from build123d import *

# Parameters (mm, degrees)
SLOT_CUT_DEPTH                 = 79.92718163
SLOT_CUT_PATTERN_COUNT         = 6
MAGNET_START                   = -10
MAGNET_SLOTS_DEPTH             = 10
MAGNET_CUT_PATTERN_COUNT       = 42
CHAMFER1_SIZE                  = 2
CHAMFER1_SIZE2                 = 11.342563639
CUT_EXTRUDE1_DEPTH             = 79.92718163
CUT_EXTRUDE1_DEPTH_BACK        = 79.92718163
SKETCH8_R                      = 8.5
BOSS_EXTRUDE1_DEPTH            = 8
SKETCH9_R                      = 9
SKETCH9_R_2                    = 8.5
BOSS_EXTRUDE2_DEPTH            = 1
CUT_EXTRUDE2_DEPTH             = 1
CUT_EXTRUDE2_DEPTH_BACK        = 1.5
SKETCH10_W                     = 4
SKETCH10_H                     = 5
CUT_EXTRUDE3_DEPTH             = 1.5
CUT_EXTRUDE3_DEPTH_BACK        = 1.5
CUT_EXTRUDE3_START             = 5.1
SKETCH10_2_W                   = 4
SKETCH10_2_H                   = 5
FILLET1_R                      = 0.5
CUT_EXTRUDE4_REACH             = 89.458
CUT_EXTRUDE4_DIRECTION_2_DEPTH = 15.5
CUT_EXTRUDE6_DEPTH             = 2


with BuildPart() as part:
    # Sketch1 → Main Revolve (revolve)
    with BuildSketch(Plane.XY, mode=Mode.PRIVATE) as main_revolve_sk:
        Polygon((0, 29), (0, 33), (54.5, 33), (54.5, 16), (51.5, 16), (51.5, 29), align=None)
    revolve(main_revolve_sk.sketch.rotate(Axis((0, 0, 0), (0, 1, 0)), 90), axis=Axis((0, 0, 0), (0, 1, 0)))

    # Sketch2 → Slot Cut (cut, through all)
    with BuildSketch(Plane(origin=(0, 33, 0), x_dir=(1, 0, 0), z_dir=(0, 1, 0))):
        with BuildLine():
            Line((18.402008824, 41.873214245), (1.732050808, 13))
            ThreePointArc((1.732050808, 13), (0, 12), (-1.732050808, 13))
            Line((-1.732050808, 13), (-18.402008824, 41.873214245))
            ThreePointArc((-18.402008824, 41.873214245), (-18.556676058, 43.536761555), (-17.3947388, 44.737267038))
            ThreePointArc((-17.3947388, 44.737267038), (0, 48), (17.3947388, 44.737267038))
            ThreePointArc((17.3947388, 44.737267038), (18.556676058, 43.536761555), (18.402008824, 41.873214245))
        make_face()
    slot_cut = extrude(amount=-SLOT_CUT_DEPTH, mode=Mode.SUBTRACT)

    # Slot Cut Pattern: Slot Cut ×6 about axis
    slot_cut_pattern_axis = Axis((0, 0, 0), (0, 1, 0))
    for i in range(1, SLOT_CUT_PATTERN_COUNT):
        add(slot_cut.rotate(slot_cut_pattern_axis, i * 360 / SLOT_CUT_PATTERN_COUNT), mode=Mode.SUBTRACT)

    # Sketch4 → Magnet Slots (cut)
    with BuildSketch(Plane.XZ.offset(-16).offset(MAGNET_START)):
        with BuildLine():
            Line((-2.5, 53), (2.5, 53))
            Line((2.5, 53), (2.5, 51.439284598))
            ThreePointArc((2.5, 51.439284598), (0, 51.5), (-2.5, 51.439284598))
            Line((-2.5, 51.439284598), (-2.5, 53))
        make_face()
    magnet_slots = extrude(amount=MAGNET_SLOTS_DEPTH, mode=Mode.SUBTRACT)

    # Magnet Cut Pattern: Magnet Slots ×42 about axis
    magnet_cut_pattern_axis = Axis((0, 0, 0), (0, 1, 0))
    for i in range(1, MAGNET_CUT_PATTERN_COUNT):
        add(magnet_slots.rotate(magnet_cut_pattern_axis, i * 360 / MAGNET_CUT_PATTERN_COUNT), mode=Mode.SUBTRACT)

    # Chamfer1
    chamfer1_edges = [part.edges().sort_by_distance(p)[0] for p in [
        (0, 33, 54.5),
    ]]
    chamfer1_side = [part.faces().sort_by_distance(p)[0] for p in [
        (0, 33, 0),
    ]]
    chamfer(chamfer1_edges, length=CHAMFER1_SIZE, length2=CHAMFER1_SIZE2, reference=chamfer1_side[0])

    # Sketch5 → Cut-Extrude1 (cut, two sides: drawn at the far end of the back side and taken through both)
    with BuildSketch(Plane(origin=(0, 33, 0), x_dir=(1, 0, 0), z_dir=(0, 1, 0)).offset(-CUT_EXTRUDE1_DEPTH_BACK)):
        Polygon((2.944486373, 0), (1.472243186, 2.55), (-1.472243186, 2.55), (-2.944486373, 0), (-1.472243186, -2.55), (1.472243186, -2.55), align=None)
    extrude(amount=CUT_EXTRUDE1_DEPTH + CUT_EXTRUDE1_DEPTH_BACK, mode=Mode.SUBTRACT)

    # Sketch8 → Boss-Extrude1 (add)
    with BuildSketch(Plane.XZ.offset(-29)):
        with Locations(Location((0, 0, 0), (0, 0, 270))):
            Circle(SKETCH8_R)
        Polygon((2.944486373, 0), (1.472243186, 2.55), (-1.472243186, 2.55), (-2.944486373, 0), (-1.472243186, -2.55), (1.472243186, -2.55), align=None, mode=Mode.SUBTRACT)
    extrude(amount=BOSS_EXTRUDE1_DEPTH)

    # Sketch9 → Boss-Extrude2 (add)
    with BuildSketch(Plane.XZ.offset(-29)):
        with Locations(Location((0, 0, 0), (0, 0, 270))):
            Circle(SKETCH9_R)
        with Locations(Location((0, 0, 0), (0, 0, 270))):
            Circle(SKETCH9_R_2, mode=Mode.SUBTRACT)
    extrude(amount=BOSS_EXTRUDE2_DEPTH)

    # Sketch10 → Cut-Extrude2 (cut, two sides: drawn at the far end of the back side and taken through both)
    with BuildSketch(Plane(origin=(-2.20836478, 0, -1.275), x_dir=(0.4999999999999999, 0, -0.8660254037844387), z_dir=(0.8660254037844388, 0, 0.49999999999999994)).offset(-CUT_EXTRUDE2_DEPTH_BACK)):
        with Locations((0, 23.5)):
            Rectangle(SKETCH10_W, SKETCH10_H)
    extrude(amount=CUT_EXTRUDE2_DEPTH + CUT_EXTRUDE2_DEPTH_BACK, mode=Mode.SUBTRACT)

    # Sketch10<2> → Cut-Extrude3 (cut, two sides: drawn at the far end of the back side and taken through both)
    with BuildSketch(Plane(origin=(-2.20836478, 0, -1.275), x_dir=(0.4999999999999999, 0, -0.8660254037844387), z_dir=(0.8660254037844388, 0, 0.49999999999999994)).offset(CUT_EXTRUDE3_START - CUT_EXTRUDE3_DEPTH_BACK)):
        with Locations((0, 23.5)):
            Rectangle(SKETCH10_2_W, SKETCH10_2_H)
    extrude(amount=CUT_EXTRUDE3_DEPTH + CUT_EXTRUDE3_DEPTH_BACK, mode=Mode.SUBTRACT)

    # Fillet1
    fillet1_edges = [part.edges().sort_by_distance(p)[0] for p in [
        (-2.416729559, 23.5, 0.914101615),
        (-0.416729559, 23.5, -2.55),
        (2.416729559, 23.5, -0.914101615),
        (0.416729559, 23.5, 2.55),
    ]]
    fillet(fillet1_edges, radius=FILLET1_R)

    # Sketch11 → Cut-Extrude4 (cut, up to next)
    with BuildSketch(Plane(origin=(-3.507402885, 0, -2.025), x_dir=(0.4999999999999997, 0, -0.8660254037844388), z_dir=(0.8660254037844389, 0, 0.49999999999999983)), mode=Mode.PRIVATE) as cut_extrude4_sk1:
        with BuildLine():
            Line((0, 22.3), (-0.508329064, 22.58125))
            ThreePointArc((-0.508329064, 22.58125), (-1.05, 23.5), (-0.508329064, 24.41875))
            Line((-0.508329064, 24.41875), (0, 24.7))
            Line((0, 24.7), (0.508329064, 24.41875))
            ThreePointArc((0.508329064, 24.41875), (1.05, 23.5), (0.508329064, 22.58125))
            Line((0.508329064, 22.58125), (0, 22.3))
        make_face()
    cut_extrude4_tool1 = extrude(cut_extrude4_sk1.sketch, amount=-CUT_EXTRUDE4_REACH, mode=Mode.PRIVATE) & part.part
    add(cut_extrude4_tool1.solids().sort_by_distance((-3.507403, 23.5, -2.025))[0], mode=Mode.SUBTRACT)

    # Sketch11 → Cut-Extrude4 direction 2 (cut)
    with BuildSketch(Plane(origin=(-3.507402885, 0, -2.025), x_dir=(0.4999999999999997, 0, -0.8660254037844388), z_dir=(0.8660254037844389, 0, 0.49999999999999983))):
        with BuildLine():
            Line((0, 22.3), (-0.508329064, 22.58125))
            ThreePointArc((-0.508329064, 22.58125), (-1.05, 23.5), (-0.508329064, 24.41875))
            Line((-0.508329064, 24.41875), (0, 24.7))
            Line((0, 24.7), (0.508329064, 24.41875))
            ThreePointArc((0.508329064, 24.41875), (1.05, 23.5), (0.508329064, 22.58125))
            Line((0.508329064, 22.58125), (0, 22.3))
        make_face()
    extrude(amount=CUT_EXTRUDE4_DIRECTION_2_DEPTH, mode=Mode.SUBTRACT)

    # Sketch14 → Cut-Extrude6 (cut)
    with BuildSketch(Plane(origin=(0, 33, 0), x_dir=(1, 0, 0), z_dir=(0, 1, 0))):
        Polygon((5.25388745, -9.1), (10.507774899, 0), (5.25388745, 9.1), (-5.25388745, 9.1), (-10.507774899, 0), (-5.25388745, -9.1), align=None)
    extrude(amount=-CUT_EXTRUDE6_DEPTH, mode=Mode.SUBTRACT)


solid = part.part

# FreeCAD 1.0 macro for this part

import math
import FreeCAD as App
import Part
import Sketcher
Q = App.Units.Quantity


def edges_at(feature, points):
    """Names of the edges that pass closest to the given points."""
    edges = feature.Shape.Edges
    near = lambda p: min(range(len(edges)), key=lambda i: edges[i].distToShape(Part.Vertex(*p))[0])
    return sorted({f"Edge{near(p) + 1}" for p in points})


def add_polygon(sketch, points):
    """Adds a closed chain of lines whose ends are joined by coincident constraints."""
    first, n = sketch.GeometryCount, len(points)
    for a, b in zip(points, points[1:] + points[:1]):
        sketch.addGeometry(Part.LineSegment(App.Vector(*a, 0), App.Vector(*b, 0)), False)
    for i in range(n):
        sketch.addConstraint(Sketcher.Constraint("Coincident", first + i, 2, first + (i + 1) % n, 1))

doc = App.newDocument("Part")
body = doc.addObject("PartDesign::Body", "Body")

# Sketch on XY plane
sketch1 = body.newObject("Sketcher::SketchObject", "Sketch")
sketch1.AttachmentSupport = (doc.getObject("XY_Plane"), [""])
sketch1.MapMode = "FlatFace"
add_polygon(sketch1, [(0, 33), (0, 29), (51.5, 29), (51.5, 16), (54.5, 16), (54.5, 33)])  # lines 0-5
sketch1.addConstraint([
    Sketcher.Constraint("Vertical", 0),
    Sketcher.Constraint("Horizontal", 1),
    Sketcher.Constraint("Vertical", 2),
    Sketcher.Constraint("Horizontal", 3),
    Sketcher.Constraint("Vertical", 4),
    Sketcher.Constraint("Horizontal", 5),
    Sketcher.Constraint("PointOnObject", 0, 2, -2),
    Sketcher.Constraint("DistanceX", 3, 1, 3, 2, Q("3 mm")),
    Sketcher.Constraint("DistanceY", 0, 2, 0, 1, Q("4 mm")),
    Sketcher.Constraint("DistanceY", 2, 2, 2, 1, Q("13 mm")),
    Sketcher.Constraint("DistanceX", 1, 1, 1, 2, Q("51.5 mm")),
    Sketcher.Constraint("DistanceY", -1, 1, 0, 2, Q("29 mm")),
])
revolution = body.newObject("PartDesign::Revolution", "Revolution")
revolution.Profile = sketch1
revolution.ReferenceAxis = (sketch1, ["V_Axis"])
revolution.Angle = 360

# Sketch on XZ plane
sketch2 = body.newObject("Sketcher::SketchObject", "Sketch001")
sketch2.AttachmentSupport = (doc.getObject("XZ_Plane"), [""])
sketch2.MapMode = "FlatFace"
sketch2.AttachmentOffset = App.Placement(App.Vector(0, 0, -33), App.Rotation())
sketch2.addGeometry([
    Part.LineSegment(App.Vector(1.732051, -13, 0), App.Vector(18.402009, -41.873214, 0)),  # 0
    Part.ArcOfCircle(Part.Circle(App.Vector(16.669958, -42.873214, 0), App.Vector(0, 0, 1), 2), math.radians(-68.752929), math.radians(30)),  # 1
    Part.ArcOfCircle(Part.Circle(App.Vector(0, 0, 0), App.Vector(0, 0, 1), 48), math.radians(-111.247071), math.radians(-68.752929)),  # 2
    Part.ArcOfCircle(Part.Circle(App.Vector(-16.669958, -42.873214, 0), App.Vector(0, 0, 1), 2), math.radians(150), math.radians(248.752929)),  # 3
    Part.LineSegment(App.Vector(-18.402009, -41.873214, 0), App.Vector(-1.732051, -13, 0)),  # 4
    Part.ArcOfCircle(Part.Circle(App.Vector(0, -14, 0), App.Vector(0, 0, 1), 2), math.radians(30), math.radians(150)),  # 5
], False)
sketch2.addConstraint([
    Sketcher.Constraint("Tangent", 0, 2, 1, 2),
    Sketcher.Constraint("Tangent", 1, 1, 2, 2),
    Sketcher.Constraint("Tangent", 2, 1, 3, 2),
    Sketcher.Constraint("Tangent", 3, 1, 4, 1),
    Sketcher.Constraint("Tangent", 4, 2, 5, 2),
    Sketcher.Constraint("Tangent", 5, 1, 0, 1),
    Sketcher.Constraint("Coincident", 2, 3, -1, 1),
    Sketcher.Constraint("Equal", 1, 3),
    Sketcher.Constraint("Equal", 3, 5),
    Sketcher.Constraint("Symmetric", 0, 2, 3, 1, -2),
    Sketcher.Constraint("Radius", 1, Q("2 mm")),
    Sketcher.Constraint("Radius", 2, Q("48 mm")),
    Sketcher.Constraint("Angle", 0, Q("-60 deg")),
    Sketcher.Constraint("DistanceY", 5, 3, -1, 1, Q("14 mm")),
])
pocket1 = body.newObject("PartDesign::Pocket", "Pocket")
pocket1.Profile = sketch2
pocket1.Type = "ThroughAll"
pocket1.Reversed = True
doc.recompute()

polarpattern = body.newObject("PartDesign::PolarPattern", "PolarPattern")
polarpattern.Originals = [pocket1]
polarpattern.Axis = (doc.getObject("Y_Axis"), [""])
polarpattern.Angle = 360
polarpattern.Occurrences = 6
body.Tip = polarpattern

# Sketch on XZ plane
sketch3 = body.newObject("Sketcher::SketchObject", "Sketch002")
sketch3.AttachmentSupport = (doc.getObject("XZ_Plane"), [""])
sketch3.MapMode = "FlatFace"
sketch3.AttachmentOffset = App.Placement(App.Vector(0, 0, -26), App.Rotation())
sketch3.addGeometry([
    Part.LineSegment(App.Vector(2.5, 53, 0), App.Vector(-2.5, 53, 0)),
    Part.LineSegment(App.Vector(-2.5, 53, 0), App.Vector(-2.5, 51.439285, 0)),
    Part.ArcOfCircle(Part.Circle(App.Vector(0, 0, 0), App.Vector(0, 0, 1), 51.5), math.radians(87.217558), math.radians(92.782442)),
    Part.LineSegment(App.Vector(2.5, 51.439285, 0), App.Vector(2.5, 53, 0)),
], False)
sketch3.addConstraint([
    Sketcher.Constraint("Coincident", 0, 2, 1, 1),
    Sketcher.Constraint("Coincident", 1, 2, 2, 2),
    Sketcher.Constraint("Coincident", 2, 1, 3, 1),
    Sketcher.Constraint("Coincident", 3, 2, 0, 1),
    Sketcher.Constraint("Horizontal", 0),
    Sketcher.Constraint("Vertical", 1),
    Sketcher.Constraint("Vertical", 3),
    Sketcher.Constraint("Coincident", 2, 3, -1, 1),
    Sketcher.Constraint("Horizontal", 1, 2, 2, 1),
    Sketcher.Constraint("Radius", 2, Q("51.5 mm")),
    Sketcher.Constraint("DistanceX", 0, 2, 0, 1, Q("5 mm")),
    Sketcher.Constraint("DistanceY", -1, 1, 0, 2, Q("53 mm")),
])
pocket2 = body.newObject("PartDesign::Pocket", "Pocket001")
pocket2.Profile = sketch3
pocket2.Length = 10
pocket2.Reversed = True
doc.recompute()

polarpattern2 = body.newObject("PartDesign::PolarPattern", "PolarPattern001")
polarpattern2.Originals = [pocket2]
polarpattern2.Axis = (doc.getObject("Y_Axis"), [""])
polarpattern2.Angle = 360
polarpattern2.Occurrences = 42
body.Tip = polarpattern2
doc.recompute()

chamfer = body.newObject("PartDesign::Chamfer", "Chamfer")
chamfer.Base = (polarpattern2, edges_at(polarpattern2, [(0, 33, 54.5)]))
chamfer.ChamferType = "Two distances"
chamfer.Size = 2
chamfer.Size2 = 11.342564

# Sketch on XZ plane
sketch4 = body.newObject("Sketcher::SketchObject", "Sketch003")
sketch4.AttachmentSupport = (doc.getObject("XZ_Plane"), [""])
sketch4.MapMode = "FlatFace"
sketch4.AttachmentOffset = App.Placement(App.Vector(0, 0, -33), App.Rotation())
add_polygon(sketch4, [(2.944486, 0), (1.472243, -2.55), (-1.472243, -2.55), (-2.944486, 0), (-1.472243, 2.55), (1.472243, 2.55)])  # lines 0-5
sketch4.addConstraint([
    Sketcher.Constraint("Horizontal", 1),
    Sketcher.Constraint("Horizontal", 4),
    Sketcher.Constraint("Symmetric", 0, 2, 3, 2, -1, 1),
    Sketcher.Constraint("Symmetric", 2, 2, 5, 2, -1, 1),
    Sketcher.Constraint("PointOnObject", 2, 2, -1),
    Sketcher.Constraint("Parallel", 2, 5),
    Sketcher.Constraint("Vertical", 1, 2, 3, 2),
    Sketcher.Constraint("Angle", 0, Q("-120 deg")),
    Sketcher.Constraint("DistanceY", 1, 2, 3, 2, Q("5.1 mm")),
    Sketcher.Constraint("DistanceX", 1, 2, 1, 1, Q("2.944486 mm")),
])
pocket3 = body.newObject("PartDesign::Pocket", "Pocket002")
pocket3.Profile = sketch4
pocket3.Type = "ThroughAll"
pocket3.Midplane = True

# Sketch on XZ plane
sketch5 = body.newObject("Sketcher::SketchObject", "Sketch004")
sketch5.AttachmentSupport = (doc.getObject("XZ_Plane"), [""])
sketch5.MapMode = "FlatFace"
sketch5.AttachmentOffset = App.Placement(App.Vector(0, 0, -29), App.Rotation())
sketch5.addGeometry(Part.Circle(App.Vector(0, 0, 0), App.Vector(0, 0, 1), 8.5), False)  # 0
add_polygon(sketch5, [(1.472243, 2.55), (2.944486, 0), (1.472243, -2.55), (-1.472243, -2.55), (-2.944486, 0), (-1.472243, 2.55)])  # lines 1-6
sketch5.addConstraint([
    Sketcher.Constraint("Horizontal", 3),
    Sketcher.Constraint("Horizontal", 6),
    Sketcher.Constraint("Coincident", 0, 3, -1, 1),
    Sketcher.Constraint("Symmetric", 1, 2, 4, 2, -1, 1),
    Sketcher.Constraint("Symmetric", 2, 2, 5, 2, -1, 1),
    Sketcher.Constraint("PointOnObject", 1, 2, -1),
    Sketcher.Constraint("Parallel", 1, 4),
    Sketcher.Constraint("Vertical", 3, 2, 5, 2),
    Sketcher.Constraint("Diameter", 0, Q("17 mm")),
    Sketcher.Constraint("Angle", 1, Q("-60 deg")),
    Sketcher.Constraint("DistanceY", 3, 2, 5, 2, Q("5.1 mm")),
    Sketcher.Constraint("DistanceX", 3, 2, 3, 1, Q("2.944486 mm")),
])
pad1 = body.newObject("PartDesign::Pad", "Pad")
pad1.Profile = sketch5
pad1.Length = 8

# Sketch on XZ plane
sketch6 = body.newObject("Sketcher::SketchObject", "Sketch005")
sketch6.AttachmentSupport = (doc.getObject("XZ_Plane"), [""])
sketch6.MapMode = "FlatFace"
sketch6.AttachmentOffset = App.Placement(App.Vector(0, 0, -29), App.Rotation())
sketch6.addGeometry([
    Part.Circle(App.Vector(0, 0, 0), App.Vector(0, 0, 1), 9),
    Part.Circle(App.Vector(0, 0, 0), App.Vector(0, 0, 1), 8.5),
], False)
sketch6.addConstraint([
    Sketcher.Constraint("Coincident", 0, 3, -1, 1),
    Sketcher.Constraint("Coincident", 1, 3, -1, 1),
    Sketcher.Constraint("Diameter", 0, Q("18 mm")),
    Sketcher.Constraint("Diameter", 1, Q("17 mm")),
])
pad2 = body.newObject("PartDesign::Pad", "Pad001")
pad2.Profile = sketch6
pad2.Length = 1

# Sketch on an angled plane
sketch7 = body.newObject("Sketcher::SketchObject", "Sketch006")
sketch7.Placement = App.Placement(App.Vector(-2.208365, 0, -1.275), App.Rotation(App.Vector(0.5, 0, -0.866025404), App.Vector(0, 1, 0), App.Vector(0.866025404, 0, 0.5), "ZXY"))
add_polygon(sketch7, [(-2, 26), (-2, 21), (2, 21), (2, 26)])  # lines 0-3
sketch7.addConstraint([
    Sketcher.Constraint("Vertical", 0),
    Sketcher.Constraint("Horizontal", 1),
    Sketcher.Constraint("Vertical", 2),
    Sketcher.Constraint("Horizontal", 3),
    Sketcher.Constraint("DistanceX", 1, 1, 1, 2, Q("4 mm")),
    Sketcher.Constraint("DistanceY", 0, 2, 0, 1, Q("5 mm")),
    Sketcher.Constraint("DistanceX", 0, 2, -1, 1, Q("2 mm")),
    Sketcher.Constraint("DistanceY", -1, 1, 0, 2, Q("21 mm")),
])
pocket4 = body.newObject("PartDesign::Pocket", "Pocket003")
pocket4.Profile = sketch7
pocket4.Type = "TwoLengths"
pocket4.Length = 1
pocket4.Length2 = 1.5
pocket4.Reversed = True

# Sketch on an angled plane
sketch8 = body.newObject("Sketcher::SketchObject", "Sketch007")
sketch8.Placement = App.Placement(App.Vector(2.208365, 0, 1.275), App.Rotation(App.Vector(0.5, 0, -0.866025404), App.Vector(0, 1, 0), App.Vector(0.866025404, 0, 0.5), "ZXY"))
add_polygon(sketch8, [(-2, 26), (-2, 21), (2, 21), (2, 26)])  # lines 0-3
sketch8.addConstraint([
    Sketcher.Constraint("Vertical", 0),
    Sketcher.Constraint("Horizontal", 1),
    Sketcher.Constraint("Vertical", 2),
    Sketcher.Constraint("Horizontal", 3),
    Sketcher.Constraint("DistanceX", 1, 1, 1, 2, Q("4 mm")),
    Sketcher.Constraint("DistanceY", 0, 2, 0, 1, Q("5 mm")),
    Sketcher.Constraint("DistanceX", 0, 2, -1, 1, Q("2 mm")),
    Sketcher.Constraint("DistanceY", -1, 1, 0, 2, Q("21 mm")),
])
pocket5 = body.newObject("PartDesign::Pocket", "Pocket004")
pocket5.Profile = sketch8
pocket5.Type = "TwoLengths"
pocket5.Length = 1.5
pocket5.Length2 = 1.5
pocket5.Reversed = True
doc.recompute()

fillet = body.newObject("PartDesign::Fillet", "Fillet")
fillet.Base = (pocket5, edges_at(pocket5, [
    (-2.417, 23.5, 0.914),
    (-0.417, 23.5, -2.55),
    (2.417, 23.5, -0.914),
    (0.417, 23.5, 2.55),
]))
fillet.Radius = 0.5

# Sketch on an angled plane
sketch9 = body.newObject("Sketcher::SketchObject", "Sketch008")
sketch9.Placement = App.Placement(App.Vector(-3.507403, 0, -2.025), App.Rotation(App.Vector(0.5, 0, -0.866025404), App.Vector(0, 1, 0), App.Vector(0.866025404, 0, 0.5), "ZXY"))
sketch9.addGeometry([
    Part.LineSegment(App.Vector(-0.508329, 22.58125, 0), App.Vector(0, 22.3, 0)),  # 0
    Part.LineSegment(App.Vector(0, 22.3, 0), App.Vector(0.508329, 22.58125, 0)),  # 1
    Part.ArcOfCircle(Part.Circle(App.Vector(0, 23.5, 0), App.Vector(0, 0, 1), 1.05), math.radians(-61.044976), math.radians(61.044976)),  # 2
    Part.LineSegment(App.Vector(0.508329, 24.41875, 0), App.Vector(0, 24.7, 0)),  # 3
    Part.LineSegment(App.Vector(0, 24.7, 0), App.Vector(-0.508329, 24.41875, 0)),  # 4
    Part.ArcOfCircle(Part.Circle(App.Vector(0, 23.5, 0), App.Vector(0, 0, 1), 1.05), math.radians(118.955024), math.radians(241.044976)),  # 5
], False)
sketch9.addConstraint([
    Sketcher.Constraint("Coincident", 0, 2, 1, 1),
    Sketcher.Constraint("Tangent", 1, 2, 2, 1),
    Sketcher.Constraint("Tangent", 2, 2, 3, 1),
    Sketcher.Constraint("Coincident", 3, 2, 4, 1),
    Sketcher.Constraint("Tangent", 4, 2, 5, 1),
    Sketcher.Constraint("Tangent", 5, 2, 0, 1),
    Sketcher.Constraint("Coincident", 5, 3, 2, 3),
    Sketcher.Constraint("Equal", 2, 5),
    Sketcher.Constraint("Symmetric", 2, 2, 4, 2, -2),
    Sketcher.Constraint("PointOnObject", 0, 2, -2),
    Sketcher.Constraint("Parallel", 0, 3),
    Sketcher.Constraint("Radius", 2, Q("1.05 mm")),
    Sketcher.Constraint("DistanceY", -1, 1, 2, 3, Q("23.5 mm")),
    Sketcher.Constraint("DistanceY", -1, 1, 0, 2, Q("22.3 mm")),
])
pocket6 = body.newObject("PartDesign::Pocket", "Pocket005")
pocket6.Profile = sketch9
pocket6.Type = "UpToFirst"

# Sketch on an angled plane
sketch10 = body.newObject("Sketcher::SketchObject", "Sketch009")
sketch10.Placement = App.Placement(App.Vector(-3.507403, 0, -2.025), App.Rotation(App.Vector(0.5, 0, -0.866025404), App.Vector(0, 1, 0), App.Vector(0.866025404, 0, 0.5), "ZXY"))
sketch10.addGeometry([
    Part.LineSegment(App.Vector(-0.508329, 22.58125, 0), App.Vector(0, 22.3, 0)),  # 0
    Part.LineSegment(App.Vector(0, 22.3, 0), App.Vector(0.508329, 22.58125, 0)),  # 1
    Part.ArcOfCircle(Part.Circle(App.Vector(0, 23.5, 0), App.Vector(0, 0, 1), 1.05), math.radians(-61.044976), math.radians(61.044976)),  # 2
    Part.LineSegment(App.Vector(0.508329, 24.41875, 0), App.Vector(0, 24.7, 0)),  # 3
    Part.LineSegment(App.Vector(0, 24.7, 0), App.Vector(-0.508329, 24.41875, 0)),  # 4
    Part.ArcOfCircle(Part.Circle(App.Vector(0, 23.5, 0), App.Vector(0, 0, 1), 1.05), math.radians(118.955024), math.radians(241.044976)),  # 5
], False)
sketch10.addConstraint([
    Sketcher.Constraint("Coincident", 0, 2, 1, 1),
    Sketcher.Constraint("Tangent", 1, 2, 2, 1),
    Sketcher.Constraint("Tangent", 2, 2, 3, 1),
    Sketcher.Constraint("Coincident", 3, 2, 4, 1),
    Sketcher.Constraint("Tangent", 4, 2, 5, 1),
    Sketcher.Constraint("Tangent", 5, 2, 0, 1),
    Sketcher.Constraint("Coincident", 5, 3, 2, 3),
    Sketcher.Constraint("Equal", 2, 5),
    Sketcher.Constraint("Symmetric", 2, 2, 4, 2, -2),
    Sketcher.Constraint("PointOnObject", 0, 2, -2),
    Sketcher.Constraint("Parallel", 0, 3),
    Sketcher.Constraint("Radius", 2, Q("1.05 mm")),
    Sketcher.Constraint("DistanceY", -1, 1, 2, 3, Q("23.5 mm")),
    Sketcher.Constraint("DistanceY", -1, 1, 0, 2, Q("22.3 mm")),
])
pocket7 = body.newObject("PartDesign::Pocket", "Pocket006")
pocket7.Profile = sketch10
pocket7.Length = 15.5
pocket7.Reversed = True

# Sketch on XZ plane
sketch11 = body.newObject("Sketcher::SketchObject", "Sketch010")
sketch11.AttachmentSupport = (doc.getObject("XZ_Plane"), [""])
sketch11.MapMode = "FlatFace"
sketch11.AttachmentOffset = App.Placement(App.Vector(0, 0, -33), App.Rotation())
add_polygon(sketch11, [(5.253887, 9.1), (10.507775, 0), (5.253887, -9.1), (-5.253887, -9.1), (-10.507775, 0), (-5.253887, 9.1)])  # lines 0-5
sketch11.addConstraint([
    Sketcher.Constraint("Horizontal", 2),
    Sketcher.Constraint("Horizontal", 5),
    Sketcher.Constraint("Symmetric", 0, 2, 3, 2, -1, 1),
    Sketcher.Constraint("Symmetric", 1, 2, 4, 2, -1, 1),
    Sketcher.Constraint("PointOnObject", 0, 2, -1),
    Sketcher.Constraint("Parallel", 0, 3),
    Sketcher.Constraint("Vertical", 2, 2, 4, 2),
    Sketcher.Constraint("Angle", 0, Q("-60 deg")),
    Sketcher.Constraint("DistanceY", 1, 2, -1, 1, Q("9.1 mm")),
    Sketcher.Constraint("DistanceX", 2, 2, 2, 1, Q("10.507775 mm")),
])
pocket8 = body.newObject("PartDesign::Pocket", "Pocket007")
pocket8.Profile = sketch11
pocket8.Length = 2
pocket8.Reversed = True

doc.recompute()
